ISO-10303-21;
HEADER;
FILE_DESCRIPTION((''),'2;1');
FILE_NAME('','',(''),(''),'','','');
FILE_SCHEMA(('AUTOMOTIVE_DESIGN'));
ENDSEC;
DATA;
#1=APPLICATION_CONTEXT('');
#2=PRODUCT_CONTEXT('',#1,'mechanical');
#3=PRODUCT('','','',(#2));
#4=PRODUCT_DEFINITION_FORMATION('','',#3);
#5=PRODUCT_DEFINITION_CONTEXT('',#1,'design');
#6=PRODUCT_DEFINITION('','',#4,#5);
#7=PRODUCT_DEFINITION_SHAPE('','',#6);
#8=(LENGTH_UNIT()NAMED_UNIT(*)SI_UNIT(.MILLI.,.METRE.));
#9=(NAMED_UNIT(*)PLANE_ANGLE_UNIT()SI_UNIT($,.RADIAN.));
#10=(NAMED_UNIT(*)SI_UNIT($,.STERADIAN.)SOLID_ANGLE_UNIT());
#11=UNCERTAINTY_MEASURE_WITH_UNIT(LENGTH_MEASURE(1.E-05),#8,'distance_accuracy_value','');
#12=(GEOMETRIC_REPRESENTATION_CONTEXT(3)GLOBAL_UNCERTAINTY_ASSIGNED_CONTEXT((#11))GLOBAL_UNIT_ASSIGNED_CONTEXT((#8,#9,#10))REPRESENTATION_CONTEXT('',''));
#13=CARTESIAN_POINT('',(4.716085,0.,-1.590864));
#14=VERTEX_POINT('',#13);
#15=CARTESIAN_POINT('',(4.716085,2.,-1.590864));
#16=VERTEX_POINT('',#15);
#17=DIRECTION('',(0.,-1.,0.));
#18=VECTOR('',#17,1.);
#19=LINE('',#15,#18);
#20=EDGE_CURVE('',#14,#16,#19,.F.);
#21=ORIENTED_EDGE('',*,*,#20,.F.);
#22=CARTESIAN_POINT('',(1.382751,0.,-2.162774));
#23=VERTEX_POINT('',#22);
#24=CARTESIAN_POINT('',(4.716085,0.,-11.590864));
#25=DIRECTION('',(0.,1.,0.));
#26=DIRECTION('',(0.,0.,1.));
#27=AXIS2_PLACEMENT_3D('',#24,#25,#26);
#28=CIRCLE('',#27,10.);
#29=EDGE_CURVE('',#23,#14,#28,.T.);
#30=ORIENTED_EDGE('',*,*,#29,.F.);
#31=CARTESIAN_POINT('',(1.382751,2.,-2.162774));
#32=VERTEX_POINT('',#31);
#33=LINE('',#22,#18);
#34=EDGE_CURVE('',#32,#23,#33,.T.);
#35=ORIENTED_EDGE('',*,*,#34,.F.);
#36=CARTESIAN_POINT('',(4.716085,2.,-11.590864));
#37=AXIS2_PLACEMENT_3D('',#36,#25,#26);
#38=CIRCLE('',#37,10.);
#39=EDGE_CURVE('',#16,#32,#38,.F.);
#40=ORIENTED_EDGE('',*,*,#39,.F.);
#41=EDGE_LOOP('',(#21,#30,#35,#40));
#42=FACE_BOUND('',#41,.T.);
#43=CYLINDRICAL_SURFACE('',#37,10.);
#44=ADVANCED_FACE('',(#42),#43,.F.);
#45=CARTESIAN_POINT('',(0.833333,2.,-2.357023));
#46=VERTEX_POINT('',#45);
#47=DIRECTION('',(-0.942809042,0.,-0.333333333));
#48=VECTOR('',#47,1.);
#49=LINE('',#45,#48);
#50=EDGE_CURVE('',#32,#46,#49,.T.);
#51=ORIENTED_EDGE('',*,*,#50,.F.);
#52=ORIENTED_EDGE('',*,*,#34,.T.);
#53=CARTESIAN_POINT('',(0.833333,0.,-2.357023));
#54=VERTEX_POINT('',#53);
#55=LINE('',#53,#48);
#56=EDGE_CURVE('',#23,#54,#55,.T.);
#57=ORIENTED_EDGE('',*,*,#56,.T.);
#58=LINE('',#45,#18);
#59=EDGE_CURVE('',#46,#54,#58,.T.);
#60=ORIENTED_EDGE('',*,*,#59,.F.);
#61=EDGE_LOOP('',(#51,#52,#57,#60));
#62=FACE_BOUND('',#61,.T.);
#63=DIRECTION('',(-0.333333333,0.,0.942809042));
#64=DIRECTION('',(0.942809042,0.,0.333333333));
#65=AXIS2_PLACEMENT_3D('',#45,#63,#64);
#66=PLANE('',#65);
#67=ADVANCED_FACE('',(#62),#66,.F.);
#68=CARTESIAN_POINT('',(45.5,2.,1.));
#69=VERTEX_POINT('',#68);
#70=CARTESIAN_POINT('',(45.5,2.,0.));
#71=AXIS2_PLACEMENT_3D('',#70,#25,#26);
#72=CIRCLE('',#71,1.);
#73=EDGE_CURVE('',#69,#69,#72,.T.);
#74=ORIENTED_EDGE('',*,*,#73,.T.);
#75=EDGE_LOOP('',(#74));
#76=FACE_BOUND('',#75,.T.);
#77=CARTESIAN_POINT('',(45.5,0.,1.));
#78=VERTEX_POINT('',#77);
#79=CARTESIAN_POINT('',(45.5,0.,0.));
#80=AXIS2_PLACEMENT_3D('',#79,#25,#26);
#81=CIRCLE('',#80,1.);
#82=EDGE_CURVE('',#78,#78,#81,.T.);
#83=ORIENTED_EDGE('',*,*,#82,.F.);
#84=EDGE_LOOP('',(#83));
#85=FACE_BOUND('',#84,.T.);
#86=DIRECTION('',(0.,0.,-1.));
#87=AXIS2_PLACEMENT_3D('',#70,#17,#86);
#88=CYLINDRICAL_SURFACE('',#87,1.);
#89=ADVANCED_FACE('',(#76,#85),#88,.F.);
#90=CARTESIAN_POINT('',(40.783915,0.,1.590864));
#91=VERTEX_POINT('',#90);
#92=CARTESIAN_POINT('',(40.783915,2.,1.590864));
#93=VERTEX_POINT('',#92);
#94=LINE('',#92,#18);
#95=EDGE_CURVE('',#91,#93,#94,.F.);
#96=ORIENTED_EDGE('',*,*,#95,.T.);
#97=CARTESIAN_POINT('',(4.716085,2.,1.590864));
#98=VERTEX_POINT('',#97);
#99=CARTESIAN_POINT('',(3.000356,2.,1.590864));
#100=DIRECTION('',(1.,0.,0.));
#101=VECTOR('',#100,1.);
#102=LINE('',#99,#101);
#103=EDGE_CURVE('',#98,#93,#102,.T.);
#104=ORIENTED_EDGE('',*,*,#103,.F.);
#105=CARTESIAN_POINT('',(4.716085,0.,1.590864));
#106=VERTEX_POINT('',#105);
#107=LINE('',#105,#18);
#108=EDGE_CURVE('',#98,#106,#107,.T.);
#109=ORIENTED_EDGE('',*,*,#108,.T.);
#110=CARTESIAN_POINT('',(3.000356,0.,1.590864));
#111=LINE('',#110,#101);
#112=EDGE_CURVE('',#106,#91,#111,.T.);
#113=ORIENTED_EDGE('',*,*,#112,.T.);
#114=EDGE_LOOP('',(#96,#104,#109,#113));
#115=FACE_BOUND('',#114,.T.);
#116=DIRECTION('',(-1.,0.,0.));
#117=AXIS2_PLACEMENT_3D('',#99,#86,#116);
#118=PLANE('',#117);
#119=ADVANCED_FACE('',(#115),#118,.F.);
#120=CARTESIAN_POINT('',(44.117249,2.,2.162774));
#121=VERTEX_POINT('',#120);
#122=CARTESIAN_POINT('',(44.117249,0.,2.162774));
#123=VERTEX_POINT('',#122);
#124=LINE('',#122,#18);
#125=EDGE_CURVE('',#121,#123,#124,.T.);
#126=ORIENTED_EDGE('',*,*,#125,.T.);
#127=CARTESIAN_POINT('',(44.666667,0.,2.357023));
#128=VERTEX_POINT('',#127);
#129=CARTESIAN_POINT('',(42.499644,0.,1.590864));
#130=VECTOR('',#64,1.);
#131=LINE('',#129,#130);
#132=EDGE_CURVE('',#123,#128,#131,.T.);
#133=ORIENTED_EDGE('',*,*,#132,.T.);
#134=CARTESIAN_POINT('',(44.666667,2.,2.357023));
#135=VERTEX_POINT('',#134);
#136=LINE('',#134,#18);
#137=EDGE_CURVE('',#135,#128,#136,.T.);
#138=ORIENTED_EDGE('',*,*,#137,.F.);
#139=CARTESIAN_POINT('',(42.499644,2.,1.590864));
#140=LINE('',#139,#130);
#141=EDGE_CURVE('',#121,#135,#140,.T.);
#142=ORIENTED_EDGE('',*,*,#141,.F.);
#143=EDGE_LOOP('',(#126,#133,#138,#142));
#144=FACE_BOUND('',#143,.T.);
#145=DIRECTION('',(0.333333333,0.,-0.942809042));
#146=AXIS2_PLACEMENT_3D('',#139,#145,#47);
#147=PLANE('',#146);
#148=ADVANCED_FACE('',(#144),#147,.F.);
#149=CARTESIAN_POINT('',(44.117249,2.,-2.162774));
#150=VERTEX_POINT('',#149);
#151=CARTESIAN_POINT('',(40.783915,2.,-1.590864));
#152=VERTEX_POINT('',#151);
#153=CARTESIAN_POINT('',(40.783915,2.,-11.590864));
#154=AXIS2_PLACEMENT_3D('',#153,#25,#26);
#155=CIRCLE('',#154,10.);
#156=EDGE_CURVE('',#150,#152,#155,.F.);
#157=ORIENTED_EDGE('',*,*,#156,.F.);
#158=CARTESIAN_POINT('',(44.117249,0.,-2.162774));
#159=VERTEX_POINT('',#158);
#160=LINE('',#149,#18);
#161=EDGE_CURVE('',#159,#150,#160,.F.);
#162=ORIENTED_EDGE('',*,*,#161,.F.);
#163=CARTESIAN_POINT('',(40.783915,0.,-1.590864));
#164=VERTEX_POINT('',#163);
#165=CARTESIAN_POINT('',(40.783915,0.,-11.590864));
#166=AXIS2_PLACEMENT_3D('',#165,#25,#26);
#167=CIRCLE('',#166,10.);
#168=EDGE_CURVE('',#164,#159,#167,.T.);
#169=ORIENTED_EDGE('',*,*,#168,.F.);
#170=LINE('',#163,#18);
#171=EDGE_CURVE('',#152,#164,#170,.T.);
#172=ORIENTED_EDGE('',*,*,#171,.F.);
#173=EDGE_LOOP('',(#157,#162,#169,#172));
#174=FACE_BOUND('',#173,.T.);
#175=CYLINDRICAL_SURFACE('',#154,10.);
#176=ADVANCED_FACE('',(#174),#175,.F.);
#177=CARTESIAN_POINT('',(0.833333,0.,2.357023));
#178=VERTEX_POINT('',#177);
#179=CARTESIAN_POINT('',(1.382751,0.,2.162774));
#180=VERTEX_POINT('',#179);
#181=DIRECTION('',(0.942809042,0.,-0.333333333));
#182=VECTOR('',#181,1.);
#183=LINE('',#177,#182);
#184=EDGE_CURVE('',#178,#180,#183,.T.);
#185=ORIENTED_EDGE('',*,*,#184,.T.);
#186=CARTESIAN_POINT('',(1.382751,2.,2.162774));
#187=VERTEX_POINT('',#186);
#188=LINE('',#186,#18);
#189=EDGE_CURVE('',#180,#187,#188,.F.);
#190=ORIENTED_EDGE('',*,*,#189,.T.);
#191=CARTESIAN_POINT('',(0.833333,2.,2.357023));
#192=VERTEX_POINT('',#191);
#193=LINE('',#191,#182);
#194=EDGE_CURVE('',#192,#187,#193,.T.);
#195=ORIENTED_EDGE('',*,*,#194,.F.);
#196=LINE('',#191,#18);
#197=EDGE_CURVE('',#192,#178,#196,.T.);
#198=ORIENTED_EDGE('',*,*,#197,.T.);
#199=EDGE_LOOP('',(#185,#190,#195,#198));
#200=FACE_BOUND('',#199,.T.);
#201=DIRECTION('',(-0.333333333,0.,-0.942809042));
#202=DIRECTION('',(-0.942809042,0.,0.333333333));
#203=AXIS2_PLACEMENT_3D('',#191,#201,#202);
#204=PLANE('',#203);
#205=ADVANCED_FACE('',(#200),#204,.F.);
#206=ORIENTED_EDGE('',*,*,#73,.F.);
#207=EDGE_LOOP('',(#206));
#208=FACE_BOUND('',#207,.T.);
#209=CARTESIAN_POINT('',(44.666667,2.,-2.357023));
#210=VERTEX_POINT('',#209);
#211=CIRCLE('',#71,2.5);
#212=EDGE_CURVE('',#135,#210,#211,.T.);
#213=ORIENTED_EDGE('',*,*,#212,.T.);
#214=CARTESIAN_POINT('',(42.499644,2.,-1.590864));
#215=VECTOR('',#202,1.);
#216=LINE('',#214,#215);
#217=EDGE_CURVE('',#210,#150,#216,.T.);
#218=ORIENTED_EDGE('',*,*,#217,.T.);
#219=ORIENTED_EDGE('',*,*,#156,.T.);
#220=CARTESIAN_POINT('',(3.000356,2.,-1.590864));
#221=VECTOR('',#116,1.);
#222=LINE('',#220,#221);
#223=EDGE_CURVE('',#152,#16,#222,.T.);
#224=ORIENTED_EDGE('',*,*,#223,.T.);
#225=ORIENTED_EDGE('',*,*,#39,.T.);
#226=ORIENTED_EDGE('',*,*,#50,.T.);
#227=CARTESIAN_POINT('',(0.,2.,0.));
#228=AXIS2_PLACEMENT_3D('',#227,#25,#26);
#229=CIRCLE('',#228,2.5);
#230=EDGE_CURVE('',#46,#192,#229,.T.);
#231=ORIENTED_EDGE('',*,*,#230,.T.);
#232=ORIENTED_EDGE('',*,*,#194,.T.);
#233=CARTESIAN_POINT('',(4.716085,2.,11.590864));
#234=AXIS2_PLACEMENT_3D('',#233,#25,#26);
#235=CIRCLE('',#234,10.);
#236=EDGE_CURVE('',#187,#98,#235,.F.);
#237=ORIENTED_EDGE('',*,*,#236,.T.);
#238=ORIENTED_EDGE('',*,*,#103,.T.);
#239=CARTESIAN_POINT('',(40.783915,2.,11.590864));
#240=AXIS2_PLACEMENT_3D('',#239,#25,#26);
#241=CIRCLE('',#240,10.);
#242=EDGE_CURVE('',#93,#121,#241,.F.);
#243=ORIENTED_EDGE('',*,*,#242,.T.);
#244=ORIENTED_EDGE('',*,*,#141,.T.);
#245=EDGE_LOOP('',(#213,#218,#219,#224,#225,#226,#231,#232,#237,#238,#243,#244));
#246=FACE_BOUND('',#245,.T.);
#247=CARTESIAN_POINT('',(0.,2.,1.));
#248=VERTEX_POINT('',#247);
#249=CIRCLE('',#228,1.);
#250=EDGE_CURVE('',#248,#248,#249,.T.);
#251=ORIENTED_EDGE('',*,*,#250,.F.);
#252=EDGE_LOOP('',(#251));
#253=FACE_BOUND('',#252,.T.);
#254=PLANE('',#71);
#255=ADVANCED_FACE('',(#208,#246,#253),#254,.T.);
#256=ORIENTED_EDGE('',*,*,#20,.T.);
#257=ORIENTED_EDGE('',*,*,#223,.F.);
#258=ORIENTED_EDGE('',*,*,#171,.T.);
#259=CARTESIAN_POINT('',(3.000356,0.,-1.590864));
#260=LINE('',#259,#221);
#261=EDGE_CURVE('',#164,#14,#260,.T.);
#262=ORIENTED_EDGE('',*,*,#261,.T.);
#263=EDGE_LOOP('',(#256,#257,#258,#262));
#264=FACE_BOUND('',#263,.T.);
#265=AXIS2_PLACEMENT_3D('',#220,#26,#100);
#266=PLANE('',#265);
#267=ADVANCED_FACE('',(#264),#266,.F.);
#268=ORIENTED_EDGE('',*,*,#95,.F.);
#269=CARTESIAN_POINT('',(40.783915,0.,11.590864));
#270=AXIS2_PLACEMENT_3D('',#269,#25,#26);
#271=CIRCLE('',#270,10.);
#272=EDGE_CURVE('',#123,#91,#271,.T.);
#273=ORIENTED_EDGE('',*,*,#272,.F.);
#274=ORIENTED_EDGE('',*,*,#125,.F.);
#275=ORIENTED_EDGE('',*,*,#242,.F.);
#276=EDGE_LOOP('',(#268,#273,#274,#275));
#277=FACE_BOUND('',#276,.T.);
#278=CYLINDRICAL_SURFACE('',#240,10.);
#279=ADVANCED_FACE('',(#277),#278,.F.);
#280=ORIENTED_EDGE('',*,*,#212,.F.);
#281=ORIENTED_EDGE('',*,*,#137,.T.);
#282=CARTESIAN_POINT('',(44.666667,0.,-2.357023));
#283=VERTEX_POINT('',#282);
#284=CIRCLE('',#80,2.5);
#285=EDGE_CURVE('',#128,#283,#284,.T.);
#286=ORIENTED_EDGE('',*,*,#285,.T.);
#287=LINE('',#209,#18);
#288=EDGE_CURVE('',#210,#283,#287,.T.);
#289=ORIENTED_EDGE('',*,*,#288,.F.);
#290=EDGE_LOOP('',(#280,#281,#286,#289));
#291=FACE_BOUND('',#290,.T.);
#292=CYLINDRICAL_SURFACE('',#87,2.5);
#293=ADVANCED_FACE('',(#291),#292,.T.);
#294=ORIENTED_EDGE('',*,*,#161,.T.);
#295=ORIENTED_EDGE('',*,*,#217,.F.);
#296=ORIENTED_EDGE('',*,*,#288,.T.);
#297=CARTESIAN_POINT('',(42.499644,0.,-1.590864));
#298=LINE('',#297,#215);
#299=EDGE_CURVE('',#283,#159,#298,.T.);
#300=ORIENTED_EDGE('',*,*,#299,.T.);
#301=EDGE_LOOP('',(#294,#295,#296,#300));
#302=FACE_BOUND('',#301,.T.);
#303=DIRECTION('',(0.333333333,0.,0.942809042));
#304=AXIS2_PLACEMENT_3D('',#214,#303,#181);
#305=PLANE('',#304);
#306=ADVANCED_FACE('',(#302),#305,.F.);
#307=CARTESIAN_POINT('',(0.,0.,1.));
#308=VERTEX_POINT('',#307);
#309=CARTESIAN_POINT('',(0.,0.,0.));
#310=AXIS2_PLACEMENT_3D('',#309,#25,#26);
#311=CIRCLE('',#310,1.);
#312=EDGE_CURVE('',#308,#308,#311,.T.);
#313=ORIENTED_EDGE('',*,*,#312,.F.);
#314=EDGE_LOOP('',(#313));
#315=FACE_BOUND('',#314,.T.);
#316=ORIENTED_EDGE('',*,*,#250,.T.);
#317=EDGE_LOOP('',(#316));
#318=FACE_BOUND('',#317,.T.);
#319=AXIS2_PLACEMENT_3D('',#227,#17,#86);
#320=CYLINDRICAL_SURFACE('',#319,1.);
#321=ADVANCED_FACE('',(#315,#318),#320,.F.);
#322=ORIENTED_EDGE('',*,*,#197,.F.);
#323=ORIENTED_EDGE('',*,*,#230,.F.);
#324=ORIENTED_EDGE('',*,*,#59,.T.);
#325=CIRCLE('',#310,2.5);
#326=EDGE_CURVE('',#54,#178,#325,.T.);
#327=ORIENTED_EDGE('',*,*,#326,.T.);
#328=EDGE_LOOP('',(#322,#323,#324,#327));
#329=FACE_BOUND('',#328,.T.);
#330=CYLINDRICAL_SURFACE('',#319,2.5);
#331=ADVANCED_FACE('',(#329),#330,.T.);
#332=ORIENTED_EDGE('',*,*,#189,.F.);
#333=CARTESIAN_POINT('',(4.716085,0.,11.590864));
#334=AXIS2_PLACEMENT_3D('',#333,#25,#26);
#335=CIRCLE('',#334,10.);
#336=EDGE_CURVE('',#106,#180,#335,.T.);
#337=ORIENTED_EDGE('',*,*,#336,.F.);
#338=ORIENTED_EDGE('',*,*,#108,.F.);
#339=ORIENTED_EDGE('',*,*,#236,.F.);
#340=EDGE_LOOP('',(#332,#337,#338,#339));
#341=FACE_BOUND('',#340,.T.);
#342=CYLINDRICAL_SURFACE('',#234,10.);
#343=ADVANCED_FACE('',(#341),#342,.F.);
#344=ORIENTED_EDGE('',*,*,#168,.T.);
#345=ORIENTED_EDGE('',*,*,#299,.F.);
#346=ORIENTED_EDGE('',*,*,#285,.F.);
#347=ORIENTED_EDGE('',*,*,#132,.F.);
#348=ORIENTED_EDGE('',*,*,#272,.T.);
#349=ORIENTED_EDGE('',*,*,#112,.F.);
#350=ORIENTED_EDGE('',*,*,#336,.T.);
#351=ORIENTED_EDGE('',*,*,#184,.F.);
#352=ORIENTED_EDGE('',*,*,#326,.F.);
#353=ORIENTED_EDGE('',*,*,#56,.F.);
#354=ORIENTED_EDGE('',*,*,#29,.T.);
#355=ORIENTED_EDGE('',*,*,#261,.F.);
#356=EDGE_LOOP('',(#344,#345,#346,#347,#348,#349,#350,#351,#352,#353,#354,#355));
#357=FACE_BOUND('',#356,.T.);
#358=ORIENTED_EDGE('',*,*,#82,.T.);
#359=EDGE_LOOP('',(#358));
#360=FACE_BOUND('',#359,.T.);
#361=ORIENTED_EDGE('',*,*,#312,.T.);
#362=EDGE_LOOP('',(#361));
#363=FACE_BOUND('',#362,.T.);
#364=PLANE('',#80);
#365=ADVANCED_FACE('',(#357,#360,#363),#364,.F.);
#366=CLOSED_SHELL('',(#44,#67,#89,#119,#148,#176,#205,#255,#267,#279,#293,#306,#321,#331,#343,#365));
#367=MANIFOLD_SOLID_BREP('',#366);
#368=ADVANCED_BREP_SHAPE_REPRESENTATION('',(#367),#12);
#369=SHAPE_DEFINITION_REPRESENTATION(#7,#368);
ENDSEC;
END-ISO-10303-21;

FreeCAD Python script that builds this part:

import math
import FreeCAD as App
import Part
import Sketcher
from FreeCAD import Vector
Q = App.Units.Quantity


def edges_at(feature, points):
    """Names of the edges that pass closest to the given points."""
    edges = feature.Shape.Edges
    near = lambda p: min(range(len(edges)), key=lambda i: edges[i].distToShape(Part.Vertex(*p))[0])
    return sorted({f"Edge{near(p) + 1}" for p in points})

doc = App.newDocument("Part")
body = doc.addObject("PartDesign::Body", "Body")

# Sketch on XZ plane
sketch1 = doc.addObject("Sketcher::SketchObject", "Sketch")
body.addObject(sketch1)
sketch1.AttachmentSupport = (doc.XZ_Plane, [""])
sketch1.MapMode = "FlatFace"
sketch1.addGeometry(Part.LineSegment(Vector(3, -1.6, 0), Vector(0.8, -2.4, 0)), False)
sketch1.addGeometry(Part.ArcOfCircle(Part.Circle(Vector(0, 0, 0), Vector(0, 0, 1), 2.5), math.radians(71), math.radians(289)), False)
sketch1.addGeometry(Part.LineSegment(Vector(0.8, 2.4, 0), Vector(3, 1.6, 0)), False)
sketch1.addGeometry(Part.LineSegment(Vector(3, 1.6, 0), Vector(42.5, 1.6, 0)), False)
sketch1.addGeometry(Part.LineSegment(Vector(42.5, 1.6, 0), Vector(44.7, 2.4, 0)), False)
sketch1.addGeometry(Part.ArcOfCircle(Part.Circle(Vector(45.5, 0, 0), Vector(0, 0, 1), 2.5), math.radians(-109), math.radians(109)), False)
sketch1.addGeometry(Part.LineSegment(Vector(44.7, -2.4, 0), Vector(42.5, -1.6, 0)), False)
sketch1.addGeometry(Part.LineSegment(Vector(42.5, -1.6, 0), Vector(3, -1.6, 0)), False)
sketch1.addGeometry(Part.Circle(Vector(45.5, 0, 0), Vector(0, 0, 1), 1), False)
sketch1.addGeometry(Part.Circle(Vector(0, 0, 0), Vector(0, 0, 1), 1), False)
sketch1.addConstraint(Sketcher.Constraint("Tangent", 0, 2, 1, 2))
sketch1.addConstraint(Sketcher.Constraint("Tangent", 1, 1, 2, 1))
sketch1.addConstraint(Sketcher.Constraint("Coincident", 2, 2, 3, 1))
sketch1.addConstraint(Sketcher.Constraint("Coincident", 3, 2, 4, 1))
sketch1.addConstraint(Sketcher.Constraint("Tangent", 4, 2, 5, 2))
sketch1.addConstraint(Sketcher.Constraint("Tangent", 5, 1, 6, 1))
sketch1.addConstraint(Sketcher.Constraint("Coincident", 6, 2, 7, 1))
sketch1.addConstraint(Sketcher.Constraint("Coincident", 7, 2, 0, 1))
sketch1.addConstraint(Sketcher.Constraint("Horizontal", 3))
sketch1.addConstraint(Sketcher.Constraint("Horizontal", 7))
sketch1.addConstraint(Sketcher.Constraint("Coincident", 1, 3, -1, 1))
sketch1.addConstraint(Sketcher.Constraint("Coincident", 9, 3, -1, 1))
sketch1.addConstraint(Sketcher.Constraint("Coincident", 8, 3, 5, 3))
sketch1.addConstraint(Sketcher.Constraint("Equal", 1, 5))
sketch1.addConstraint(Sketcher.Constraint("Equal", 8, 9))
sketch1.addConstraint(Sketcher.Constraint("Symmetric", 4, 2, 5, 1, -1))
sketch1.addConstraint(Sketcher.Constraint("Symmetric", 2, 2, 7, 2, -1))
sketch1.addConstraint(Sketcher.Constraint("Parallel", 0, 4))
sketch1.addConstraint(Sketcher.Constraint("Diameter", 8, Q("2 mm")))
sketch1.addConstraint(Sketcher.Constraint("Radius", 1, Q("2.5 mm")))
sketch1.addConstraint(Sketcher.Constraint("DistanceX", -1, 1, 5, 3, Q("45.5 mm")))
sketch1.addConstraint(Sketcher.Constraint("DistanceX", 3, 1, 3, 2, Q("39.499288 mm")))
sketch1.addConstraint(Sketcher.Constraint("DistanceY", 2, 2, 1, 1, Q("0.766158 mm")))
pad1 = doc.addObject("PartDesign::Pad", "Pad")
body.addObject(pad1)
pad1.Profile = sketch1
pad1.Length = 2
pad1.Reversed = True
doc.recompute()

fillet = doc.addObject("PartDesign::Fillet", "Fillet")
body.addObject(fillet)
fillet.Base = (pad1, edges_at(pad1, [
    (42.5, 1, -1.591),
    (42.5, 1, 1.591),
    (3, 1, 1.591),
    (3, 1, -1.591),
]))
fillet.Radius = 10

doc.recompute()
